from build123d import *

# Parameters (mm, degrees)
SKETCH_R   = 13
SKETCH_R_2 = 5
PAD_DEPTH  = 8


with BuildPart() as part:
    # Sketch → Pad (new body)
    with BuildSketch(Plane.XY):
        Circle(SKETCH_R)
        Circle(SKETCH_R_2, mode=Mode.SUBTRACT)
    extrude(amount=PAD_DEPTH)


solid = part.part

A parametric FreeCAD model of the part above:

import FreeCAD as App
import Part
import Sketcher

V = App.Vector

doc = App.newDocument("Part")
body = doc.addObject("PartDesign::Body", "Body")

# Sketch on XY plane
sketch1 = doc.addObject("Sketcher::SketchObject", "Sketch")
body.addObject(sketch1)
sketch1.AttachmentSupport = (doc.XY_Plane, [""])
sketch1.MapMode = "FlatFace"
sketch1.addGeometry(Part.Circle(V(0, 0, 0), V(0, 0, 1), 13), False)
sketch1.addGeometry(Part.Circle(V(0, 0, 0), V(0, 0, 1), 5), False)
sketch1.addConstraint(Sketcher.Constraint("Coincident", 0, 3, -1, 1))
sketch1.addConstraint(Sketcher.Constraint("Coincident", 1, 3, -1, 1))
sketch1.addConstraint(Sketcher.Constraint("Diameter", 0, 26.0))
sketch1.addConstraint(Sketcher.Constraint("Diameter", 1, 10.0))
pad1 = doc.addObject("PartDesign::Pad", "Pad")
body.addObject(pad1)
pad1.Profile = sketch1
pad1.Length = 8

doc.recompute()
